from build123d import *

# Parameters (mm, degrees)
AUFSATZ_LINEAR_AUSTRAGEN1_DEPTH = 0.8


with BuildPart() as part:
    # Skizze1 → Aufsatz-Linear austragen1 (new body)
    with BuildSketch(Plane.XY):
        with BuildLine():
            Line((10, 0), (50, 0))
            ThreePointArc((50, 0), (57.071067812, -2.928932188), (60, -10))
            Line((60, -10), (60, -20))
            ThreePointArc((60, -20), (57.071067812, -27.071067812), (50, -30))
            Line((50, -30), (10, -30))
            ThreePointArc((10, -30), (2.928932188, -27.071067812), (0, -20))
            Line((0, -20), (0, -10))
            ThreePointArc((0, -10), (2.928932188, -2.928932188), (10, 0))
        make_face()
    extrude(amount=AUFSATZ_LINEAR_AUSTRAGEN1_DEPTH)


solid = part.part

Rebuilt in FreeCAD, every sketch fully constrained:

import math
import FreeCAD as App
import Part
import Sketcher

doc = App.newDocument("Part")
body = doc.addObject("PartDesign::Body", "Body")

# Sketch on XY plane
sketch1 = body.newObject("Sketcher::SketchObject", "Sketch")
sketch1.AttachmentSupport = (doc.getObject("XY_Plane"), [""])
sketch1.MapMode = "FlatFace"
sketch1.addGeometry([
    Part.LineSegment(App.Vector(50, 0, 0), App.Vector(10, 0, 0)),  # 0
    Part.ArcOfCircle(Part.Circle(App.Vector(10, -10, 0), App.Vector(0, 0, 1), 10), math.radians(90), math.radians(180)),  # 1
    Part.LineSegment(App.Vector(0, -10, 0), App.Vector(0, -20, 0)),  # 2
    Part.ArcOfCircle(Part.Circle(App.Vector(10, -20, 0), App.Vector(0, 0, 1), 10), math.radians(180), math.radians(270)),  # 3
    Part.LineSegment(App.Vector(10, -30, 0), App.Vector(50, -30, 0)),  # 4
    Part.ArcOfCircle(Part.Circle(App.Vector(50, -20, 0), App.Vector(0, 0, 1), 10), math.radians(-90), math.radians(0)),  # 5
    Part.LineSegment(App.Vector(60, -20, 0), App.Vector(60, -10, 0)),  # 6
    Part.ArcOfCircle(Part.Circle(App.Vector(50, -10, 0), App.Vector(0, 0, 1), 10), math.radians(0), math.radians(90)),  # 7
], False)
sketch1.addConstraint([
    Sketcher.Constraint("Tangent", 0, 2, 1, 1),
    Sketcher.Constraint("Tangent", 1, 2, 2, 1),
    Sketcher.Constraint("Tangent", 2, 2, 3, 1),
    Sketcher.Constraint("Tangent", 3, 2, 4, 1),
    Sketcher.Constraint("Tangent", 4, 2, 5, 1),
    Sketcher.Constraint("Tangent", 5, 2, 6, 1),
    Sketcher.Constraint("Tangent", 6, 2, 7, 1),
    Sketcher.Constraint("Tangent", 7, 2, 0, 1),
    Sketcher.Constraint("Horizontal", 0),
    Sketcher.Constraint("Vertical", 2),
    Sketcher.Constraint("Horizontal", 4),
    Sketcher.Constraint("Vertical", 6),
    Sketcher.Constraint("Equal", 1, 3),
    Sketcher.Constraint("Equal", 3, 5),
    Sketcher.Constraint("Equal", 5, 7),
    Sketcher.Constraint("PointOnObject", 0, 2, -1),
    Sketcher.Constraint("PointOnObject", 1, 2, -2),
    Sketcher.Constraint("Radius", 1, 10.0),
    Sketcher.Constraint("DistanceX", 0, 2, 0, 1, 40.0),
    Sketcher.Constraint("DistanceY", 2, 2, 2, 1, 10.0),
])
pad1 = body.newObject("PartDesign::Pad", "Pad")
pad1.Profile = sketch1
pad1.Length = 0.8

doc.recompute()
